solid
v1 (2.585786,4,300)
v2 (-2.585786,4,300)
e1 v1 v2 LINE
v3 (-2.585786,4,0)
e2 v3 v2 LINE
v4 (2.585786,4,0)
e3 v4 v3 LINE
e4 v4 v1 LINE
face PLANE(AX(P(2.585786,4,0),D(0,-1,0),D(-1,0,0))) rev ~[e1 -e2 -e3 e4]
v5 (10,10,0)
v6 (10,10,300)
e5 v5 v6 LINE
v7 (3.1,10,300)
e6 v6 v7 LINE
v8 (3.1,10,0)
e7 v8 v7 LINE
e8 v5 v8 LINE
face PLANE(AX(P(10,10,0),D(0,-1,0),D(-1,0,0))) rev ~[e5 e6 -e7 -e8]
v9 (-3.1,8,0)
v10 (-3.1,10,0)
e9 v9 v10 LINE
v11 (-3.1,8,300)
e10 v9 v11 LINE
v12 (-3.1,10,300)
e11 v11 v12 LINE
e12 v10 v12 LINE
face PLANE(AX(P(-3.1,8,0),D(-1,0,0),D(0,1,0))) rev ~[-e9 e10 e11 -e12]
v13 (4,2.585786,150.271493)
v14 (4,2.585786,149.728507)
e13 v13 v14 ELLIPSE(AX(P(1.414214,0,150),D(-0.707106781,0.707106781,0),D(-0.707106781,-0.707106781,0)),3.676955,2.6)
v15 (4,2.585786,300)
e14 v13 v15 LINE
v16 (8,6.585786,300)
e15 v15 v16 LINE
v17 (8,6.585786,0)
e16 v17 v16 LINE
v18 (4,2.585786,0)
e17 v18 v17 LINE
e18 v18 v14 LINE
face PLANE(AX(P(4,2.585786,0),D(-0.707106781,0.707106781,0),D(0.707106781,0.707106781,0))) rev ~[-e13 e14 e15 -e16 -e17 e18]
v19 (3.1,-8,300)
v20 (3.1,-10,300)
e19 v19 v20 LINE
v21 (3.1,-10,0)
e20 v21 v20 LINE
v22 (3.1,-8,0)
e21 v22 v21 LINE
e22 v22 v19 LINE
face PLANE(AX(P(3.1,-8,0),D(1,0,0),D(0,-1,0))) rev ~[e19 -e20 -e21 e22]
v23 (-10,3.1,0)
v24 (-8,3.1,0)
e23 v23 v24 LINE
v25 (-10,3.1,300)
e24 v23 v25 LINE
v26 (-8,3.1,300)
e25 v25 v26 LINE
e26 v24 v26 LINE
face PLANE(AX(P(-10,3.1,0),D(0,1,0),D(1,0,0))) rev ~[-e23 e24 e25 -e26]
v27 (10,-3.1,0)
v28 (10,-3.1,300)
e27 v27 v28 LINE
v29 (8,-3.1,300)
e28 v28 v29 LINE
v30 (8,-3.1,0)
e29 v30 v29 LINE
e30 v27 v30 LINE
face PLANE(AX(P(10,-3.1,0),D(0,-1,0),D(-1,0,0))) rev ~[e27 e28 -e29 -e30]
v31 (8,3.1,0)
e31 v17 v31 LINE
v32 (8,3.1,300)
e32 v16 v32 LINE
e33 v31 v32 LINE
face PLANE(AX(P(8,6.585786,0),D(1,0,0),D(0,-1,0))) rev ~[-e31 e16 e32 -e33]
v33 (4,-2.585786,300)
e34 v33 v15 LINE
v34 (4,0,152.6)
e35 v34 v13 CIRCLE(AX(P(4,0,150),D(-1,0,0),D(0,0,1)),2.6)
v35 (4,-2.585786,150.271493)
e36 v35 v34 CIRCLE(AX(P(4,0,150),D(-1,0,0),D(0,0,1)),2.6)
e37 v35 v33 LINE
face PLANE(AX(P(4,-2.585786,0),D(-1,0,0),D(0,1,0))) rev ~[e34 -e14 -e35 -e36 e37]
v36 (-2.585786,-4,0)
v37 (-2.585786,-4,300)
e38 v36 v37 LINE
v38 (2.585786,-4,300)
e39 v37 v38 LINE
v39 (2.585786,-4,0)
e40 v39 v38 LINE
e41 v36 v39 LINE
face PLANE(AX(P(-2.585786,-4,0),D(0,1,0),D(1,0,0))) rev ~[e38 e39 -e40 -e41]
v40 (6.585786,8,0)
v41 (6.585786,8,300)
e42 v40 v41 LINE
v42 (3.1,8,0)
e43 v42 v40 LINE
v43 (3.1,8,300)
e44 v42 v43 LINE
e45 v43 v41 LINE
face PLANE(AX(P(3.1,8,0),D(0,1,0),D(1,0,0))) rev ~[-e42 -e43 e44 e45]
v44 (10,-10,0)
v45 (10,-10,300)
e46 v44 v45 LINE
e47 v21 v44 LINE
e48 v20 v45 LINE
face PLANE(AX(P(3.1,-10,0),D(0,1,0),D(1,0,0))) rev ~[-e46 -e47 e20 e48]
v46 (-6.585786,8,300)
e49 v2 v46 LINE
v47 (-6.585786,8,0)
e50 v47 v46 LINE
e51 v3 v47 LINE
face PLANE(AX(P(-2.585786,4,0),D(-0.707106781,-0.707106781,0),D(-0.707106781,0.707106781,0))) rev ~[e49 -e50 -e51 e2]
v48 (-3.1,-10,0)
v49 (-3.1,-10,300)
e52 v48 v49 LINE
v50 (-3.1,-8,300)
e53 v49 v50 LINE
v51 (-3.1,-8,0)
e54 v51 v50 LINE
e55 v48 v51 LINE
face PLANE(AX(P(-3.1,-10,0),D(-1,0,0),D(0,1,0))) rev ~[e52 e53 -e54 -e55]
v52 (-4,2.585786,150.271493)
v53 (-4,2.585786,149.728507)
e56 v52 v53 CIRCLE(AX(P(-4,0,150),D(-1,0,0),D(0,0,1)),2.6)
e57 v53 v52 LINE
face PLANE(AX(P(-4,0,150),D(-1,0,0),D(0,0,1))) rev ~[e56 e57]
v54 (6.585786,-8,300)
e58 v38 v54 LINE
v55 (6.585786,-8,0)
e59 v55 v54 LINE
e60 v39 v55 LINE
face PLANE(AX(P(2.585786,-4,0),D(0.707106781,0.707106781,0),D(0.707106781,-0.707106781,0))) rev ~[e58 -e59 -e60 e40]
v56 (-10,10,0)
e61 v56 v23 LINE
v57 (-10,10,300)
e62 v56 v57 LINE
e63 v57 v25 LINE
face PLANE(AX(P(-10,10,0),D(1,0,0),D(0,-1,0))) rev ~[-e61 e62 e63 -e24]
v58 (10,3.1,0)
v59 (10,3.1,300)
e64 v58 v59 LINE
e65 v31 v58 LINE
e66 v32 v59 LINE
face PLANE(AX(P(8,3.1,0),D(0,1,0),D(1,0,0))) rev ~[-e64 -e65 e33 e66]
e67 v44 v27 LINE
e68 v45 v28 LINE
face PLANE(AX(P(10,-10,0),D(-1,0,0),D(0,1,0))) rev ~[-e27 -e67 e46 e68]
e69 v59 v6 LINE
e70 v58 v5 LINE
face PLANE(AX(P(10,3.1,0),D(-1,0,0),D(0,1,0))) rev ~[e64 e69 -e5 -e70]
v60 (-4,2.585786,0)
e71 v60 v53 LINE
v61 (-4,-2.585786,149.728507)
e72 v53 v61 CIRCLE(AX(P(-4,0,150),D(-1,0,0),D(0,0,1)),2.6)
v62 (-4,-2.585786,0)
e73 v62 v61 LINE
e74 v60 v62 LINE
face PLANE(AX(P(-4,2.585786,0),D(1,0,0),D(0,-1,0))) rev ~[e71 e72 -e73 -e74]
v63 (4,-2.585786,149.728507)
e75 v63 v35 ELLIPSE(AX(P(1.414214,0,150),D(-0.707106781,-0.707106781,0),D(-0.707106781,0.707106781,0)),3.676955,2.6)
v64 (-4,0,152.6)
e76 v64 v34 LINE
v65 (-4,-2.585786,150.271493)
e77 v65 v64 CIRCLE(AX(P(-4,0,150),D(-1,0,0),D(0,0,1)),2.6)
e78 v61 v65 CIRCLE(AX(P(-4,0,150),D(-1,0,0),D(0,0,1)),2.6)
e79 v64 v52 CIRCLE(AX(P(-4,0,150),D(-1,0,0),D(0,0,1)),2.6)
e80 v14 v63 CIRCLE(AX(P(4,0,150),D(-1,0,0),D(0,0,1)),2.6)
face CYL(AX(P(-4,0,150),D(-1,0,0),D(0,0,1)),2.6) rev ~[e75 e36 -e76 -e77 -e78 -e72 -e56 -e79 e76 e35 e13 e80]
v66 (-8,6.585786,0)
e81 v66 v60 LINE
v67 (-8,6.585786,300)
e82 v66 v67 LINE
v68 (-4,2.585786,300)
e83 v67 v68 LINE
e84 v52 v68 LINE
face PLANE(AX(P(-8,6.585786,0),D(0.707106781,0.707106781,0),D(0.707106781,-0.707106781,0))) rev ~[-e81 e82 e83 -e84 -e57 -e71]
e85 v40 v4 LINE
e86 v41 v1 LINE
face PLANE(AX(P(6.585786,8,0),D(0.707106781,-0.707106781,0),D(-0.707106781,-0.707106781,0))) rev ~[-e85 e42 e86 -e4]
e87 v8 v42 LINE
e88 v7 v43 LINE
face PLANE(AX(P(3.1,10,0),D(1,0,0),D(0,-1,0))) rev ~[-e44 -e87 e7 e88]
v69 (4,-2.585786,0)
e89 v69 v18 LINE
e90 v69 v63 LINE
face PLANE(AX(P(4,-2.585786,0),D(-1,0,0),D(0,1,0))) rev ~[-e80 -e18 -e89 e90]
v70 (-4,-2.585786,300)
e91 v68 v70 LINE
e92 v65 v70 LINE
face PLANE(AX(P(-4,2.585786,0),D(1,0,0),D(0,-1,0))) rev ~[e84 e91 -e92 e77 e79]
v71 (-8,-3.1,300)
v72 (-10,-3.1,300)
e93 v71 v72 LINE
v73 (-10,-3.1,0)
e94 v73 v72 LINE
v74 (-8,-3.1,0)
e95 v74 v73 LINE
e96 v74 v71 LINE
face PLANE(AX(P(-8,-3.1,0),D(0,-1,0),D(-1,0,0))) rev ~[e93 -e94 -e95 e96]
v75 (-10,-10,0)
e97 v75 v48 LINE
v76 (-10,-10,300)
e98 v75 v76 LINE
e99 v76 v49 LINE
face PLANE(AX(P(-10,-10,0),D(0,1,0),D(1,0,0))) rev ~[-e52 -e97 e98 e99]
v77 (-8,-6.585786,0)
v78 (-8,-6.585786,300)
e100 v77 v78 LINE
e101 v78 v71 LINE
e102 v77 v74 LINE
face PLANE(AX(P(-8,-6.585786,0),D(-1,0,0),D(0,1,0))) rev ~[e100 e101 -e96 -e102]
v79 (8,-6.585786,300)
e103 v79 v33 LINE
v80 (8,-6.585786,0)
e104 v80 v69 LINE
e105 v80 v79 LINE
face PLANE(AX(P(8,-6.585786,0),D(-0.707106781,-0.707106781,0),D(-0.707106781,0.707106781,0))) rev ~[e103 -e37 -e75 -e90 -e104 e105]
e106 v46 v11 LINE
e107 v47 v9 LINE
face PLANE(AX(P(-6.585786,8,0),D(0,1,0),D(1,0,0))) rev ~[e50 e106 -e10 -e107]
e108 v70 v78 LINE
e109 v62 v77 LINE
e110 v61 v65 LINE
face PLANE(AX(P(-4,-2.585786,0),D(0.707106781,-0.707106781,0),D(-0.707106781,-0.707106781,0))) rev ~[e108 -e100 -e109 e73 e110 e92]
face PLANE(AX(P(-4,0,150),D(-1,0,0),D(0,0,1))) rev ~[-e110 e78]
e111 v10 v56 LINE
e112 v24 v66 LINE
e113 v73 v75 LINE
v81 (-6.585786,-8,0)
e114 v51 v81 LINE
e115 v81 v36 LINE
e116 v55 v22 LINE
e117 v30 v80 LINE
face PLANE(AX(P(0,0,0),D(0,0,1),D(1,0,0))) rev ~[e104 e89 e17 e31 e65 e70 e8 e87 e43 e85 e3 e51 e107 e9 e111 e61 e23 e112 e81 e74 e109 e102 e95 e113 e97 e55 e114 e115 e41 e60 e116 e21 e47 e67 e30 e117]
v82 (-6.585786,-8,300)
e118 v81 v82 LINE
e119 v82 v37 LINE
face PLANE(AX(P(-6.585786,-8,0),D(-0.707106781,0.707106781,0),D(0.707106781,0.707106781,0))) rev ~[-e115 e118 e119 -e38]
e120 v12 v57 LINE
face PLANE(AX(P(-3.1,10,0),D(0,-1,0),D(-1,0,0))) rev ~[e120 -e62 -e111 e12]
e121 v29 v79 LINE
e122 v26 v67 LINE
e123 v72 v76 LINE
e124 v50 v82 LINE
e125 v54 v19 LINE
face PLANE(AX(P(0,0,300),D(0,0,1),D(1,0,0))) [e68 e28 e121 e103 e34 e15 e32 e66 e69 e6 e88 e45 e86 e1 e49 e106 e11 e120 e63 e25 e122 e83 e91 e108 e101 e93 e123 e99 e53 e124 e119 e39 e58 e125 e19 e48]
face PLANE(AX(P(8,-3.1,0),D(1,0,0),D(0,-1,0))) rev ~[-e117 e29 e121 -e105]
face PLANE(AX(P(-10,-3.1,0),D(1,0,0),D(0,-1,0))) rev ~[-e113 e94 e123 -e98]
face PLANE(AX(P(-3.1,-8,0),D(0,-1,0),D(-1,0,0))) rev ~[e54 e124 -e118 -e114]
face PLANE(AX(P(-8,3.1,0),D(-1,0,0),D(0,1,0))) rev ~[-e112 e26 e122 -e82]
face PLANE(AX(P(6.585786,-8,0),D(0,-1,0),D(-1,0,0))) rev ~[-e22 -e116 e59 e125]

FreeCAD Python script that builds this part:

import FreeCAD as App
import Part
import Sketcher
from FreeCAD import Vector
Q = App.Units.Quantity


def add_polygon(sketch, points):
    """Adds a closed chain of lines whose ends are joined by coincident constraints."""
    first, n = sketch.GeometryCount, len(points)
    for a, b in zip(points, points[1:] + points[:1]):
        sketch.addGeometry(Part.LineSegment(App.Vector(*a, 0), App.Vector(*b, 0)), False)
    for i in range(n):
        sketch.addConstraint(Sketcher.Constraint("Coincident", first + i, 2, first + (i + 1) % n, 1))

doc = App.newDocument("Part")
body = doc.addObject("PartDesign::Body", "Body")

# Sketch on XY plane
sketch1 = doc.addObject("Sketcher::SketchObject", "Sketch")
body.addObject(sketch1)
sketch1.AttachmentSupport = (doc.XY_Plane, [""])
sketch1.MapMode = "FlatFace"
add_polygon(sketch1, [(-8, 6.585786), (-4, 2.585786), (-4, -2.585786), (-8, -6.585786), (-8, -3.1), (-10, -3.1), (-10, -10), (-3.1, -10), (-3.1, -8), (-6.585786, -8), (-2.585786, -4), (2.585786, -4), (6.585786, -8), (3.1, -8), (3.1, -10), (10, -10), (10, -3.1), (8, -3.1), (8, -6.585786), (4, -2.585786), (4, 2.585786), (8, 6.585786), (8, 3.1), (10, 3.1), (10, 10), (3.1, 10), (3.1, 8), (6.585786, 8), (2.585786, 4), (-2.585786, 4), (-6.585786, 8), (-3.1, 8), (-3.1, 10), (-10, 10), (-10, 3.1), (-8, 3.1)])  # lines 0-35
sketch1.addConstraint([
    Sketcher.Constraint("Vertical", 1),
    Sketcher.Constraint("Vertical", 3),
    Sketcher.Constraint("Horizontal", 4),
    Sketcher.Constraint("Vertical", 5),
    Sketcher.Constraint("Horizontal", 6),
    Sketcher.Constraint("Vertical", 7),
    Sketcher.Constraint("Horizontal", 8),
    Sketcher.Constraint("Horizontal", 10),
    Sketcher.Constraint("Horizontal", 12),
    Sketcher.Constraint("Vertical", 13),
    Sketcher.Constraint("Horizontal", 14),
    Sketcher.Constraint("Vertical", 15),
    Sketcher.Constraint("Horizontal", 16),
    Sketcher.Constraint("Vertical", 17),
    Sketcher.Constraint("Vertical", 19),
    Sketcher.Constraint("Vertical", 21),
    Sketcher.Constraint("Horizontal", 22),
    Sketcher.Constraint("Vertical", 23),
    Sketcher.Constraint("Horizontal", 24),
    Sketcher.Constraint("Vertical", 25),
    Sketcher.Constraint("Horizontal", 26),
    Sketcher.Constraint("Horizontal", 28),
    Sketcher.Constraint("Horizontal", 30),
    Sketcher.Constraint("Vertical", 31),
    Sketcher.Constraint("Horizontal", 32),
    Sketcher.Constraint("Vertical", 33),
    Sketcher.Constraint("Horizontal", 34),
    Sketcher.Constraint("Vertical", 35),
    Sketcher.Constraint("Symmetric", 0, 2, 18, 2, -1, 1),
    Sketcher.Constraint("Symmetric", 2, 2, 20, 2, -1, 1),
    Sketcher.Constraint("Symmetric", 4, 2, 22, 2, -1, 1),
    Sketcher.Constraint("Symmetric", 6, 2, 24, 2, -1, 1),
    Sketcher.Constraint("Symmetric", 8, 2, 26, 2, -1, 1),
    Sketcher.Constraint("Symmetric", 9, 2, 27, 2, -1, 1),
    Sketcher.Constraint("Symmetric", 11, 2, 29, 2, -1, 1),
    Sketcher.Constraint("Symmetric", 13, 2, 31, 2, -1, 1),
    Sketcher.Constraint("Symmetric", 15, 2, 33, 2, -1, 1),
    Sketcher.Constraint("Symmetric", 17, 2, 35, 2, -1, 1),
    Sketcher.Constraint("Symmetric", 8, 2, 11, 2, -2),
    Sketcher.Constraint("Symmetric", 6, 2, 13, 2, -2),
    Sketcher.Constraint("Symmetric", 4, 2, 15, 2, -2),
    Sketcher.Constraint("Symmetric", 2, 2, 17, 2, -2),
    Sketcher.Constraint("Perpendicular", 0, 2),
    Sketcher.Constraint("Parallel", 2, 9),
    Sketcher.Constraint("Perpendicular", 9, 11),
    Sketcher.Constraint("Perpendicular", 18, 20),
    Sketcher.Constraint("Perpendicular", 27, 29),
    Sketcher.Constraint("Horizontal", 1, 2, 18, 2),
    Sketcher.Constraint("Equal", 28, 1),
    Sketcher.Constraint("Equal", 30, 3),
    Sketcher.Constraint("Equal", 32, 5),
    Sketcher.Constraint("Equal", 34, 7),
    Sketcher.Constraint("Equal", 2, 9),
    Sketcher.Constraint("DistanceX", 4, 2, 4, 1, Q("2 mm")),
    Sketcher.Constraint("DistanceX", 6, 1, 6, 2, Q("6.9 mm")),
    Sketcher.Constraint("DistanceX", 0, 2, -1, 1, Q("4 mm")),
    Sketcher.Constraint("DistanceX", 2, 2, -1, 1, Q("8 mm")),
    Sketcher.Constraint("DistanceX", 8, 2, 8, 1, Q("3.485786 mm")),
])
pad1 = doc.addObject("PartDesign::Pad", "Pad")
body.addObject(pad1)
pad1.Profile = sketch1
pad1.Length = 300

# Sketch on YZ plane
sketch2 = doc.addObject("Sketcher::SketchObject", "Sketch001")
body.addObject(sketch2)
sketch2.AttachmentSupport = (doc.YZ_Plane, [""])
sketch2.MapMode = "FlatFace"
sketch2.AttachmentOffset = App.Placement(Vector(0, 0, -4), App.Rotation())
sketch2.addGeometry(Part.Circle(Vector(0, 150, 0), Vector(0, 0, 1), 2.6), False)
sketch2.addConstraint([
    Sketcher.Constraint("PointOnObject", 0, 3, -2),
    Sketcher.Constraint("Diameter", 0, Q("5.2 mm")),
    Sketcher.Constraint("DistanceY", -1, 1, 0, 3, Q("150 mm")),
])
pocket1 = doc.addObject("PartDesign::Pocket", "Pocket")
body.addObject(pocket1)
pocket1.Profile = sketch2
pocket1.Type = "ThroughAll"
pocket1.Reversed = True

doc.recompute()
